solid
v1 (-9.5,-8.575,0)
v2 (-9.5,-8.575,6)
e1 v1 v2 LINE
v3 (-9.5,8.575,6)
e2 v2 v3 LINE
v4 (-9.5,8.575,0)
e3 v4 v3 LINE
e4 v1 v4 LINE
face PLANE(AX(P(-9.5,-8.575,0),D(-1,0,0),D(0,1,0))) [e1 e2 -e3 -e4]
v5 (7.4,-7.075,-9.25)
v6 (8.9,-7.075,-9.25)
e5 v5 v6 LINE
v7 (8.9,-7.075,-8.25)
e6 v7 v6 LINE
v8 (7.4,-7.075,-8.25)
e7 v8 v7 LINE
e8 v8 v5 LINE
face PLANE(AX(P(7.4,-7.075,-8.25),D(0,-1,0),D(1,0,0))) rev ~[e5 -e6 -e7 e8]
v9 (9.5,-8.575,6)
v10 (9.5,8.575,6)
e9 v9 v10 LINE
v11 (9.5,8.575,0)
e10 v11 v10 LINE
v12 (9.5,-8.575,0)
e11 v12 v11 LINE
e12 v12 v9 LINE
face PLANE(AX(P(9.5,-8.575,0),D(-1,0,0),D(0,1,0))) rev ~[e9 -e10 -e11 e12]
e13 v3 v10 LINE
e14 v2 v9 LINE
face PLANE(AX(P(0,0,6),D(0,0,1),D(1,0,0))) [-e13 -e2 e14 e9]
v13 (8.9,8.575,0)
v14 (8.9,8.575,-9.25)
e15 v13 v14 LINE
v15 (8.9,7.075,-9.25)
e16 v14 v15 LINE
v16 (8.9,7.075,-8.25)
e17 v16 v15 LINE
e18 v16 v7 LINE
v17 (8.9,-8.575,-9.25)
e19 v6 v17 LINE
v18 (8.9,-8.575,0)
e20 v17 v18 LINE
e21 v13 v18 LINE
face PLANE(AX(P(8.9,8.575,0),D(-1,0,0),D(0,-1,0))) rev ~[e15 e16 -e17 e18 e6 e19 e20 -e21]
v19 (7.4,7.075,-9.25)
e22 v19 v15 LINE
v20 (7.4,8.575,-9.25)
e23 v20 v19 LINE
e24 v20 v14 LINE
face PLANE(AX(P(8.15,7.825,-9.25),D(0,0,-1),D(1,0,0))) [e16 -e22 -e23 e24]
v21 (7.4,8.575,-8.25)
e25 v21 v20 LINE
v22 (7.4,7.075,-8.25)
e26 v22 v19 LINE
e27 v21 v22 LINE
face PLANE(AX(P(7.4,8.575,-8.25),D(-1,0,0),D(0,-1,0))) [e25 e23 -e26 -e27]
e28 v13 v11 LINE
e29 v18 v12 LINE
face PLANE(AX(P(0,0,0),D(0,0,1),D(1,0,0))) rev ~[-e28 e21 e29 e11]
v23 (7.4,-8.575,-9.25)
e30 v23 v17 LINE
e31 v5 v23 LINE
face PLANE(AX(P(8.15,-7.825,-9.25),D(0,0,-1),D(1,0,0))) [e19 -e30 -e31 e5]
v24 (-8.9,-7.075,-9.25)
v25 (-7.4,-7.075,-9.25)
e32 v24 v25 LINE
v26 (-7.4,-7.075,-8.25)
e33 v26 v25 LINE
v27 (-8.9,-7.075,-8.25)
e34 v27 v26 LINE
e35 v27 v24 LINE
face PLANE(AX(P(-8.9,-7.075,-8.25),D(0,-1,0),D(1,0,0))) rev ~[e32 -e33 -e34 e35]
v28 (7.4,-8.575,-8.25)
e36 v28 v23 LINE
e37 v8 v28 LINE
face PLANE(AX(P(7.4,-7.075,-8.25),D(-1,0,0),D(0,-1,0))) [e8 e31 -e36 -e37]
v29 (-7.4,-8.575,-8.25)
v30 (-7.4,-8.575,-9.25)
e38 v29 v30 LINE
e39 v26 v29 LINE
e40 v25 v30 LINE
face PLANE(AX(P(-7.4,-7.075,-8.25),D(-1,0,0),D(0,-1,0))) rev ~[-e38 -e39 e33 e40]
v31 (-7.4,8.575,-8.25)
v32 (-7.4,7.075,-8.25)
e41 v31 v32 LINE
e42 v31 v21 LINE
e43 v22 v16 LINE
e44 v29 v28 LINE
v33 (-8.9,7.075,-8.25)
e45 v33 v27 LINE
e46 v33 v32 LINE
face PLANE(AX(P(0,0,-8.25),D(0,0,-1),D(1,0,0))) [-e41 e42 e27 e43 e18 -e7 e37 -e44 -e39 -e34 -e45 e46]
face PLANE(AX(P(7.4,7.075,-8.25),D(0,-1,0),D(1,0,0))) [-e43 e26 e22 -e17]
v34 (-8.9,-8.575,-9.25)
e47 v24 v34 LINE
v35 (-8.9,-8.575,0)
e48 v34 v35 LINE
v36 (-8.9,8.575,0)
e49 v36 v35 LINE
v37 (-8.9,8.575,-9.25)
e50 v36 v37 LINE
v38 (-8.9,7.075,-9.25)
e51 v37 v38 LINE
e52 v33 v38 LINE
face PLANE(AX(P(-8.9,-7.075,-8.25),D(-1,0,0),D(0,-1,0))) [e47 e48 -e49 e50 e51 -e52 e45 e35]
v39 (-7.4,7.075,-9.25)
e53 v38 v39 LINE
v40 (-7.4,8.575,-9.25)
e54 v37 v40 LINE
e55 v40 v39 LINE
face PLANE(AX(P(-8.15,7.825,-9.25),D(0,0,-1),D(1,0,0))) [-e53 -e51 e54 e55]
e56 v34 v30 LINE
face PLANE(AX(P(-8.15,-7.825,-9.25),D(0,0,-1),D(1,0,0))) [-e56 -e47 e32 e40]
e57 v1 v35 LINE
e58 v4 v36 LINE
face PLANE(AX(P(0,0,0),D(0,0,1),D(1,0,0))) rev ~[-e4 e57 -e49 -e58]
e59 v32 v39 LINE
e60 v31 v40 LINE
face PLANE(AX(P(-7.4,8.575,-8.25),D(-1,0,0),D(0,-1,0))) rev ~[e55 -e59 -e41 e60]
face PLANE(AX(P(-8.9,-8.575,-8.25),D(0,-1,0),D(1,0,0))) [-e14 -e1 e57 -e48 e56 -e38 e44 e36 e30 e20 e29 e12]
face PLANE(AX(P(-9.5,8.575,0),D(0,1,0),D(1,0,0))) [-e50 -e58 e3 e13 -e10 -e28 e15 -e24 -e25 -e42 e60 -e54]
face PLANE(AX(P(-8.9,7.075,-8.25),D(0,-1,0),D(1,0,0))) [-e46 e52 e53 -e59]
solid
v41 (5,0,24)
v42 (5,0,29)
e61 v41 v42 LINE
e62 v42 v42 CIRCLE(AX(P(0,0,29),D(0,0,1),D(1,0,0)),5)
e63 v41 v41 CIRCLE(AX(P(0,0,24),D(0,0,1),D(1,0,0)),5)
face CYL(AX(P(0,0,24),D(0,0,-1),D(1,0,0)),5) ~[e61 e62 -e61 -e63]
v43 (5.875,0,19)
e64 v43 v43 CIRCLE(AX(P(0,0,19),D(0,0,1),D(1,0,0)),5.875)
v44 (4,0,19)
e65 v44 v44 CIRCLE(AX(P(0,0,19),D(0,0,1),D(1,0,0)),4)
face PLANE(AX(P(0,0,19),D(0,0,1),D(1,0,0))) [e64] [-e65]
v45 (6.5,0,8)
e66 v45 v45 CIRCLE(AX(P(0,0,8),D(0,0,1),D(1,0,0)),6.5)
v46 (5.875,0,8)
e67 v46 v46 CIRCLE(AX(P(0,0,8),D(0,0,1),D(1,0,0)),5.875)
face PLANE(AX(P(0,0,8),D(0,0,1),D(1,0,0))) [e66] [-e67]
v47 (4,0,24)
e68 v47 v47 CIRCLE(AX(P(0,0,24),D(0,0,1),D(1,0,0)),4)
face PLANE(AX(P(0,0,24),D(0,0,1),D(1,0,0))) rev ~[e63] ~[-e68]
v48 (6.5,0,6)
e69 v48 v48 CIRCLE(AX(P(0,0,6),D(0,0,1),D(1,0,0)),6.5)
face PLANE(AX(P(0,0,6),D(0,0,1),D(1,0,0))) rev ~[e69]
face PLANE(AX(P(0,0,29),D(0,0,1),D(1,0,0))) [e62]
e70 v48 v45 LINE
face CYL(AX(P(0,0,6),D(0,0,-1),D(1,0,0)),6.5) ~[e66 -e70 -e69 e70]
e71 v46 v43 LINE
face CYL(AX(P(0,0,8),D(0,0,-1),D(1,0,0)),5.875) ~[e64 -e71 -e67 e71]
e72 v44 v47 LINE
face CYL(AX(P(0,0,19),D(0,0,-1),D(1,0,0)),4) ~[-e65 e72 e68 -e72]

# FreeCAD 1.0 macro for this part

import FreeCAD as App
import Part
import Sketcher
from FreeCAD import Vector


def add_polygon(sketch, points):
    """Adds a closed chain of lines whose ends are joined by coincident constraints."""
    first, n = sketch.GeometryCount, len(points)
    for a, b in zip(points, points[1:] + points[:1]):
        sketch.addGeometry(Part.LineSegment(App.Vector(*a, 0), App.Vector(*b, 0)), False)
    for i in range(n):
        sketch.addConstraint(Sketcher.Constraint("Coincident", first + i, 2, first + (i + 1) % n, 1))

doc = App.newDocument("Part")
params = doc.addObject("Spreadsheet::Sheet", "Params")
for row, (alias, value) in enumerate([
    ("sketch1_width", "19 mm"),
    ("sketch1_height", "17.15 mm"),
    ("pad1_length", "6 mm"),
    ("sketch2_width", "17.8 mm"),
    ("sketch2_height", "17.15 mm"),
    ("pad2_length", "8.25 mm"),
    ("sketch3_width", "1.5 mm"),
    ("pad3_length", "1 mm"),
    ("sketch4_diameter", "13 mm"),
    ("pad4_length", "2 mm"),
    ("sketch5_diameter", "11.75 mm"),
    ("pad5_length", "11 mm"),
    ("sketch6_diameter", "8 mm"),
    ("pad6_length", "5 mm"),
    ("sketch7_diameter", "10 mm"),
    ("pad7_length", "5 mm"),
], start=1):
    params.set(f"A{row}", alias)
    params.set(f"B{row}", "=" + value)
    params.setAlias(f"B{row}", alias)

body = doc.addObject("PartDesign::Body", "Body")

sketch1 = body.newObject("Sketcher::SketchObject", "Sketch")
sketch1.AttachmentSupport = (doc.getObject("XY_Plane"), [""])
sketch1.MapMode = "FlatFace"
add_polygon(sketch1, [(-10, 9), (-10, -9), (10, -9), (10, 9)])
sketch1.addConstraint([
    Sketcher.Constraint("Vertical", 0),
    Sketcher.Constraint("Horizontal", 1),
    Sketcher.Constraint("Vertical", 2),
    Sketcher.Constraint("Horizontal", 3),
    Sketcher.Constraint("Symmetric", 0, 2, 2, 2, -1, 1),
    Sketcher.Constraint("DistanceX", 1, 1, 1, 2, 19.0),
    Sketcher.Constraint("DistanceY", 0, 2, 0, 1, 17.15),
])
sketch1.setExpression("Constraints[9]", "Params.sketch1_width")
sketch1.setExpression("Constraints[10]", "Params.sketch1_height")
pad1 = body.newObject("PartDesign::Pad", "Pad")
pad1.Profile = sketch1
pad1.setExpression("Length", "Params.pad1_length")

sketch2 = body.newObject("Sketcher::SketchObject", "Sketch001")
sketch2.AttachmentSupport = (doc.getObject("XY_Plane"), [""])
sketch2.MapMode = "FlatFace"
add_polygon(sketch2, [(-9, -9), (-9, 9), (9, 9), (9, -9)])
sketch2.addConstraint([
    Sketcher.Constraint("Vertical", 0),
    Sketcher.Constraint("Horizontal", 1),
    Sketcher.Constraint("Vertical", 2),
    Sketcher.Constraint("Horizontal", 3),
    Sketcher.Constraint("Symmetric", 0, 2, 2, 2, -1, 1),
    Sketcher.Constraint("DistanceX", 1, 1, 1, 2, 17.8),
    Sketcher.Constraint("DistanceY", 0, 1, 0, 2, 17.15),
])
sketch2.setExpression("Constraints[9]", "Params.sketch2_width")
sketch2.setExpression("Constraints[10]", "Params.sketch2_height")
pad2 = body.newObject("PartDesign::Pad", "Pad001")
pad2.Profile = sketch2
pad2.setExpression("Length", "Params.pad2_length")
pad2.Reversed = True

sketch3 = body.newObject("Sketcher::SketchObject", "Sketch002")
sketch3.AttachmentSupport = (doc.getObject("XY_Plane"), [""])
sketch3.MapMode = "FlatFace"
sketch3.AttachmentOffset = App.Placement(Vector(0, 0, -8.25), App.Rotation())
add_polygon(sketch3, [(-8.9, -8.6), (-8.9, -7.1), (-7.4, -7.1), (-7.4, -8.6)])
add_polygon(sketch3, [(7.4, -8.6), (7.4, -7.1), (8.9, -7.1), (8.9, -8.6)])
add_polygon(sketch3, [(-8.9, 7.1), (-8.9, 8.6), (-7.4, 8.6), (-7.4, 7.1)])
add_polygon(sketch3, [(7.4, 7.1), (7.4, 8.6), (8.9, 8.6), (8.9, 7.1)])
sketch3.addConstraint([
    Sketcher.Constraint("Vertical", 0),
    Sketcher.Constraint("Horizontal", 1),
    Sketcher.Constraint("Vertical", 2),
    Sketcher.Constraint("Horizontal", 3),
    Sketcher.Constraint("Vertical", 4),
    Sketcher.Constraint("Horizontal", 5),
    Sketcher.Constraint("Vertical", 6),
    Sketcher.Constraint("Horizontal", 7),
    Sketcher.Constraint("Vertical", 8),
    Sketcher.Constraint("Horizontal", 9),
    Sketcher.Constraint("Vertical", 10),
    Sketcher.Constraint("Horizontal", 11),
    Sketcher.Constraint("Vertical", 12),
    Sketcher.Constraint("Horizontal", 13),
    Sketcher.Constraint("Vertical", 14),
    Sketcher.Constraint("Horizontal", 15),
    Sketcher.Constraint("Symmetric", 6, 2, 8, 2, -1, 1),
    Sketcher.Constraint("Symmetric", 4, 2, 10, 2, -1, 1),
    Sketcher.Constraint("Symmetric", 2, 2, 12, 2, -1, 1),
    Sketcher.Constraint("Symmetric", 0, 2, 14, 2, -1, 1),
    Sketcher.Constraint("Symmetric", 1, 2, 4, 2, -2),
    Sketcher.Constraint("Symmetric", 3, 2, 6, 2, -2),
    Sketcher.Constraint("Equal", 15, 0),
    Sketcher.Constraint("DistanceX", 1, 1, 1, 2, 1.5),
    Sketcher.Constraint("DistanceX", 0, 2, -1, 1, 8.9),
    Sketcher.Constraint("DistanceY", 0, 2, 8, 2, 15.65),
])
sketch3.setExpression("Constraints[39]", "Params.sketch3_width")
pad3 = body.newObject("PartDesign::Pad", "Pad002")
pad3.Profile = sketch3
pad3.setExpression("Length", "Params.pad3_length")
pad3.Reversed = True
body2 = doc.addObject("PartDesign::Body", "Body001")

sketch4 = body2.newObject("Sketcher::SketchObject", "Sketch003")
sketch4.AttachmentSupport = (doc.getObject("XY_Plane001"), [""])
sketch4.MapMode = "FlatFace"
sketch4.AttachmentOffset = App.Placement(Vector(0, 0, 6), App.Rotation())
sketch4.addGeometry(Part.Circle(Vector(0, 0, 0), Vector(0, 0, 1), 6), False)
sketch4.addConstraint([
    Sketcher.Constraint("Coincident", 0, 3, -1, 1),
    Sketcher.Constraint("Diameter", 0, 13.0),
])
sketch4.setExpression("Constraints[1]", "Params.sketch4_diameter")
pad4 = body2.newObject("PartDesign::Pad", "Pad003")
pad4.Profile = sketch4
pad4.setExpression("Length", "Params.pad4_length")

sketch5 = body2.newObject("Sketcher::SketchObject", "Sketch004")
sketch5.AttachmentSupport = (doc.getObject("XY_Plane001"), [""])
sketch5.MapMode = "FlatFace"
sketch5.AttachmentOffset = App.Placement(Vector(0, 0, 8), App.Rotation())
sketch5.addGeometry(Part.Circle(Vector(0, 0, 0), Vector(0, 0, 1), 6), False)
sketch5.addConstraint([
    Sketcher.Constraint("Coincident", 0, 3, -1, 1),
    Sketcher.Constraint("Diameter", 0, 11.75),
])
sketch5.setExpression("Constraints[1]", "Params.sketch5_diameter")
pad5 = body2.newObject("PartDesign::Pad", "Pad004")
pad5.Profile = sketch5
pad5.setExpression("Length", "Params.pad5_length")

sketch6 = body2.newObject("Sketcher::SketchObject", "Sketch005")
sketch6.AttachmentSupport = (doc.getObject("XY_Plane001"), [""])
sketch6.MapMode = "FlatFace"
sketch6.AttachmentOffset = App.Placement(Vector(0, 0, 19), App.Rotation())
sketch6.addGeometry(Part.Circle(Vector(0, 0, 0), Vector(0, 0, 1), 4), False)
sketch6.addConstraint([
    Sketcher.Constraint("Coincident", 0, 3, -1, 1),
    Sketcher.Constraint("Diameter", 0, 8.0),
])
sketch6.setExpression("Constraints[1]", "Params.sketch6_diameter")
pad6 = body2.newObject("PartDesign::Pad", "Pad005")
pad6.Profile = sketch6
pad6.setExpression("Length", "Params.pad6_length")

sketch7 = body2.newObject("Sketcher::SketchObject", "Sketch006")
sketch7.AttachmentSupport = (doc.getObject("XY_Plane001"), [""])
sketch7.MapMode = "FlatFace"
sketch7.AttachmentOffset = App.Placement(Vector(0, 0, 24), App.Rotation())
sketch7.addGeometry(Part.Circle(Vector(0, 0, 0), Vector(0, 0, 1), 5), False)
sketch7.addConstraint([
    Sketcher.Constraint("Coincident", 0, 3, -1, 1),
    Sketcher.Constraint("Diameter", 0, 10.0),
])
sketch7.setExpression("Constraints[1]", "Params.sketch7_diameter")
pad7 = body2.newObject("PartDesign::Pad", "Pad006")
pad7.Profile = sketch7
pad7.setExpression("Length", "Params.pad7_length")

doc.recompute()
